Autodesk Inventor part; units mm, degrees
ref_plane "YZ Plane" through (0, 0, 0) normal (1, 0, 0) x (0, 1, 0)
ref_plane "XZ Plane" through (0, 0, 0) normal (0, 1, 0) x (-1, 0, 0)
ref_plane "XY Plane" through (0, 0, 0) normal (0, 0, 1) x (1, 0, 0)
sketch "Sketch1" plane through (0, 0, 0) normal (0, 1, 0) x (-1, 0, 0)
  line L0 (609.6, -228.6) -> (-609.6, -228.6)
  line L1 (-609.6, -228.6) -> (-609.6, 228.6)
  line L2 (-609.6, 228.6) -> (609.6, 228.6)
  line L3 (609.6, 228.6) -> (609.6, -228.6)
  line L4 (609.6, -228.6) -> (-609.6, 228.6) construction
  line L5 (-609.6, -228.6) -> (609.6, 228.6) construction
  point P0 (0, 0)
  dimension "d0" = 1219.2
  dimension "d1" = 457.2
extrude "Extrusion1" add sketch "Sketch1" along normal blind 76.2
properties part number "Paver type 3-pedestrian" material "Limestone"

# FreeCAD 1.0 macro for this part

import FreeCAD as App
import Part
import Sketcher

V = App.Vector
Q = App.Units.Quantity


def add_polygon(sketch, points):
    """Adds a closed chain of lines whose ends are joined by coincident constraints."""
    first, n = sketch.GeometryCount, len(points)
    for a, b in zip(points, points[1:] + points[:1]):
        sketch.addGeometry(Part.LineSegment(App.Vector(*a, 0), App.Vector(*b, 0)), False)
    for i in range(n):
        sketch.addConstraint(Sketcher.Constraint("Coincident", first + i, 2, first + (i + 1) % n, 1))

doc = App.newDocument("Part")
params = doc.addObject("Spreadsheet::Sheet", "Params")
for row, (alias, value) in enumerate([
    ("sketch1_width", "48 in"),
    ("sketch1_height", "18 in"),
    ("pad1_length", "3 in"),
], start=1):
    params.set(f"A{row}", alias)
    params.set(f"B{row}", "=" + value)
    params.setAlias(f"B{row}", alias)

body = doc.addObject("PartDesign::Body", "Body")

# Sketch on XZ plane
sketch1 = doc.addObject("Sketcher::SketchObject", "Sketch")
body.addObject(sketch1)
sketch1.AttachmentSupport = (doc.XZ_Plane, [""])
sketch1.MapMode = "FlatFace"
add_polygon(sketch1, [(609.6, -228.6), (-609.6, -228.6), (-609.6, 228.6), (609.6, 228.6)])  # lines 0-3
sketch1.addConstraint([
    Sketcher.Constraint("Horizontal", 0),
    Sketcher.Constraint("Vertical", 1),
    Sketcher.Constraint("Horizontal", 2),
    Sketcher.Constraint("Vertical", 3),
    Sketcher.Constraint("Symmetric", 0, 2, 2, 2, -1, 1),
    Sketcher.Constraint("DistanceX", 0, 2, 0, 1, Q("48 in")),
    Sketcher.Constraint("DistanceY", 1, 1, 1, 2, Q("18 in")),
])
sketch1.setExpression("Constraints[9]", "Params.sketch1_width")
sketch1.setExpression("Constraints[10]", "Params.sketch1_height")
pad1 = doc.addObject("PartDesign::Pad", "Pad")
body.addObject(pad1)
pad1.Profile = sketch1
pad1.setExpression("Length", "Params.pad1_length")
pad1.Reversed = True

doc.recompute()
